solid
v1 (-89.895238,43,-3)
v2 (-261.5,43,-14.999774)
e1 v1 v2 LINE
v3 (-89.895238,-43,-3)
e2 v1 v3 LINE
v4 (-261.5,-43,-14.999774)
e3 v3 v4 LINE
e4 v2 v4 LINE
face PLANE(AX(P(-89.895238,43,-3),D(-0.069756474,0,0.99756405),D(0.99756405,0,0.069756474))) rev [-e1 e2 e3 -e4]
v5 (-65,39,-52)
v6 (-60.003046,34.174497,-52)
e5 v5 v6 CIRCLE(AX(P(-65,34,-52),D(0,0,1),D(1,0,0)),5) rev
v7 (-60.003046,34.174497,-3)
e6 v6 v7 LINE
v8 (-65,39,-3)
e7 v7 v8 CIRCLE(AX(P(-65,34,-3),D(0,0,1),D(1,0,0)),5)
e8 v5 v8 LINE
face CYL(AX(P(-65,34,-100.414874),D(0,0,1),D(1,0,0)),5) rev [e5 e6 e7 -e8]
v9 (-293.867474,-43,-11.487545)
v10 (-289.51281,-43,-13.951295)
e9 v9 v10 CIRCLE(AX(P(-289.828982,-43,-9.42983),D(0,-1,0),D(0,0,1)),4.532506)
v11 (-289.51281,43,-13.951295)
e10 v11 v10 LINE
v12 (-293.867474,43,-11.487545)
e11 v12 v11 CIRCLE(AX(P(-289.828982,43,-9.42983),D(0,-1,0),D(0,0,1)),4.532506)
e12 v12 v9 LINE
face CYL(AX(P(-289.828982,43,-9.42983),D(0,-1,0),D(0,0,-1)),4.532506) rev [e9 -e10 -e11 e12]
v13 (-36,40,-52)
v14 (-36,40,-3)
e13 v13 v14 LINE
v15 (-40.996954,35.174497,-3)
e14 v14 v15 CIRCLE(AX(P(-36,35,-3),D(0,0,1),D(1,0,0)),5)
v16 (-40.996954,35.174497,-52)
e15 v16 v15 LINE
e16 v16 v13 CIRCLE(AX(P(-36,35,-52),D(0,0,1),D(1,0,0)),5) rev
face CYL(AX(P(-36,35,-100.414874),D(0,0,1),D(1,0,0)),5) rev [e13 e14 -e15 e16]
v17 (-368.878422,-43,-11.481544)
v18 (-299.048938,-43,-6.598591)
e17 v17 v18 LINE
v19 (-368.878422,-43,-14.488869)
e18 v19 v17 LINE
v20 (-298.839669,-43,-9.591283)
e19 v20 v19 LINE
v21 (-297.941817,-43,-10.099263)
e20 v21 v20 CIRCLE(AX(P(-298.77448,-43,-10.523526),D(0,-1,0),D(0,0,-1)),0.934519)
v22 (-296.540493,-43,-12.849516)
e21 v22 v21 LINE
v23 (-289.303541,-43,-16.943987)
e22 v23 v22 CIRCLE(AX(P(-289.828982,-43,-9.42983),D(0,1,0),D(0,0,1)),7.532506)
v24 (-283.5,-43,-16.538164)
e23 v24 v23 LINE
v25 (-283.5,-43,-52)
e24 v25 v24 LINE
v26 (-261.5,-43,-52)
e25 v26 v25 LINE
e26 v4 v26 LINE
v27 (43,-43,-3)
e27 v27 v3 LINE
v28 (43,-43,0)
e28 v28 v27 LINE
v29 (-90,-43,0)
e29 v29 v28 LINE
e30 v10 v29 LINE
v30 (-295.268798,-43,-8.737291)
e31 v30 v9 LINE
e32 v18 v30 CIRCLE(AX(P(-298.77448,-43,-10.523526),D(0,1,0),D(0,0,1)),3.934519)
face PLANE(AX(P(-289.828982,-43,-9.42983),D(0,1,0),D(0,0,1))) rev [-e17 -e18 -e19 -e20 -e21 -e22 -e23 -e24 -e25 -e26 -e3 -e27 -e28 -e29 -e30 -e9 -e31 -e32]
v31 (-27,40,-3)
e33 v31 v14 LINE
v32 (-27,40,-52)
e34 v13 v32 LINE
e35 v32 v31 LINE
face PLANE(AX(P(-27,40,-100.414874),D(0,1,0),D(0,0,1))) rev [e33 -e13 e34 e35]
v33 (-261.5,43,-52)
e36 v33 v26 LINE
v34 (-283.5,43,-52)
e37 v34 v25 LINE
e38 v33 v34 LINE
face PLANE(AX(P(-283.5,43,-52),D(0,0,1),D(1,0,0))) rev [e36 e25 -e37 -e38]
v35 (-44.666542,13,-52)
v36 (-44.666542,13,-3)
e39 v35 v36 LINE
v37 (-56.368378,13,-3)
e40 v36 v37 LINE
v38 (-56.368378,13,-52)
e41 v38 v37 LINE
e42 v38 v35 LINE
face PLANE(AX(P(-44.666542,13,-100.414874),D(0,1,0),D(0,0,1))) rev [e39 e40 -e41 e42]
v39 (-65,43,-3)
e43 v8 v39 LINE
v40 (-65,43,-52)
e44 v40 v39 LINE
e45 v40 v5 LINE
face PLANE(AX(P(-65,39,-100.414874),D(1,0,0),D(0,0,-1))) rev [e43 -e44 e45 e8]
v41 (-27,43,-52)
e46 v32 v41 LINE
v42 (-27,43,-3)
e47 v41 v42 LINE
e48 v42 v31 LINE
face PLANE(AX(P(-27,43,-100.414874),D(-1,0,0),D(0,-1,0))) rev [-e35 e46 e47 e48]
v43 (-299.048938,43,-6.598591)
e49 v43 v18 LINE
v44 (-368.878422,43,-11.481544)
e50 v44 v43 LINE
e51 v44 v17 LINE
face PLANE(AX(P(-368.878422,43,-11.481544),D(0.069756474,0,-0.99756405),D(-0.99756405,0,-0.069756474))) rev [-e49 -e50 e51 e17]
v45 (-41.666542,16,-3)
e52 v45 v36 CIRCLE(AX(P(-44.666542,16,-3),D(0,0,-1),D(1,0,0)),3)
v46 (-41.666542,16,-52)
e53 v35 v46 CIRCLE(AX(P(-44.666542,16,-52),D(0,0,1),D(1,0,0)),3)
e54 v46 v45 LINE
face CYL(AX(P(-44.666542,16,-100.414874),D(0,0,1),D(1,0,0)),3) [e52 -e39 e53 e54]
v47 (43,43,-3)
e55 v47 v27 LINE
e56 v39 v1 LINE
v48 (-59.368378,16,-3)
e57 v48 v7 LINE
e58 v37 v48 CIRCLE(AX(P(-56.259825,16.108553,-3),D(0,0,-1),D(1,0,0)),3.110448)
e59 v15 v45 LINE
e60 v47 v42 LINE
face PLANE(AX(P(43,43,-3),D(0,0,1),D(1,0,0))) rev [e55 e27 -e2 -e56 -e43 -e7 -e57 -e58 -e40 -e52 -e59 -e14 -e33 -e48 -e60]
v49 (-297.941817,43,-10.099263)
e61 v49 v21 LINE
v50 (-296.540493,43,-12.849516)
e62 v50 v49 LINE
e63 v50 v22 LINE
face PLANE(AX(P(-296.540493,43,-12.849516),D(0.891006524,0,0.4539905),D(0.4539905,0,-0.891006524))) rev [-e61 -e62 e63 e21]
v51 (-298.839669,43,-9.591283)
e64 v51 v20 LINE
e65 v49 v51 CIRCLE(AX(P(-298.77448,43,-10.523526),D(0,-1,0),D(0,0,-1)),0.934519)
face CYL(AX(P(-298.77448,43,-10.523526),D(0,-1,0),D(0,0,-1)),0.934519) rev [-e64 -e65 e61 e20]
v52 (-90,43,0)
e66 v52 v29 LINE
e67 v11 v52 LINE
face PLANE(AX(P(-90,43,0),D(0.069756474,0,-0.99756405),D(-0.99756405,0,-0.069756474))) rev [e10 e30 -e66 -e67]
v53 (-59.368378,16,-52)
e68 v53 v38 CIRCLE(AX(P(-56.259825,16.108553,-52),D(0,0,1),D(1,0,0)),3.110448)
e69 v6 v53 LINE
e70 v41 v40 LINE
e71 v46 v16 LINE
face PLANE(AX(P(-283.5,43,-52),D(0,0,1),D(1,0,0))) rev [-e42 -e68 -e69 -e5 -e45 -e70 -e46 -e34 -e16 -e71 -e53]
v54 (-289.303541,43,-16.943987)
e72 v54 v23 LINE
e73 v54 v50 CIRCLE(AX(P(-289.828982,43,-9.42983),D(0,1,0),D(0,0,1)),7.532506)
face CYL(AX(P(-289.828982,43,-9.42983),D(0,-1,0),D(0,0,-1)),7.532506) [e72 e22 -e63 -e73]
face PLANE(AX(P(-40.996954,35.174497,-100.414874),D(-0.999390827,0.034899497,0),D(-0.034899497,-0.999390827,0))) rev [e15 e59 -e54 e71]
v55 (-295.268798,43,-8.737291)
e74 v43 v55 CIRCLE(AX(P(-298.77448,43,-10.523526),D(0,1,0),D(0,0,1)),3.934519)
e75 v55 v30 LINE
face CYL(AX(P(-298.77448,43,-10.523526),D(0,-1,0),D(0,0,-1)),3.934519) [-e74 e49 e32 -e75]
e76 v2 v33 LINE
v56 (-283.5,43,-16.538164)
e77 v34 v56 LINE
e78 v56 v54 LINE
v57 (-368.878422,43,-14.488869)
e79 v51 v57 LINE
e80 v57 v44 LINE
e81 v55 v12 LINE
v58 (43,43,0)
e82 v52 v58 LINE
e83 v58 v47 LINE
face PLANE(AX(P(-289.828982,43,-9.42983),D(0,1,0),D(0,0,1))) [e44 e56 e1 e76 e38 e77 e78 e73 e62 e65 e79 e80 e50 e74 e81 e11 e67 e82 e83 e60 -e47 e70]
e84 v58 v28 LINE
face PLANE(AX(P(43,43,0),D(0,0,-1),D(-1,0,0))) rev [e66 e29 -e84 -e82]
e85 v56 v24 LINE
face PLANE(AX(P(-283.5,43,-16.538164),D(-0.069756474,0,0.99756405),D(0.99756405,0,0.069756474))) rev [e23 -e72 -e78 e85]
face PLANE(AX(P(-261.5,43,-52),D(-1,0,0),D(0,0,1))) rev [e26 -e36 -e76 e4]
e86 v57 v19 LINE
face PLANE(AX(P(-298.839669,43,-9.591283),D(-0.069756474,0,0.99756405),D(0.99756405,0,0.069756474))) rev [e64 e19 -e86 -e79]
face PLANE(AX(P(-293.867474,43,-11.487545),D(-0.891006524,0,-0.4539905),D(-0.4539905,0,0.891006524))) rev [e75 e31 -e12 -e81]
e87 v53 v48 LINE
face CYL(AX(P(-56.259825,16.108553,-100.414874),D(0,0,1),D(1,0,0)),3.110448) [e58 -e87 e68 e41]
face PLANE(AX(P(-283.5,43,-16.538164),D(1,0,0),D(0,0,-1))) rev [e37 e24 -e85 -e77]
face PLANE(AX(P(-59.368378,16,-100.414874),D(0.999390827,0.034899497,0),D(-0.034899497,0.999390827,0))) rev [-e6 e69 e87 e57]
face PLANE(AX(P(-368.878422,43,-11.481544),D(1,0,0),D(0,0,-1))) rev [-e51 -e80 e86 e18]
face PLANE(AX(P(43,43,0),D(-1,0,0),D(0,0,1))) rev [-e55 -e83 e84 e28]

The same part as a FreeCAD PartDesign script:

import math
import FreeCAD as App
import Part
import Sketcher
from FreeCAD import Vector
Q = App.Units.Quantity

doc = App.newDocument("Part")
body = doc.addObject("PartDesign::Body", "Body")

sketch1 = body.newObject("Sketcher::SketchObject", "Sketch")
sketch1.AttachmentSupport = (doc.getObject("XZ_Plane"), [""])
sketch1.MapMode = "FlatFace"
sketch1.addGeometry(Part.LineSegment(Vector(-90, 0, 0), Vector(43, 0, 0)), False)
sketch1.addGeometry(Part.LineSegment(Vector(43, 0, 0), Vector(43, -3, 0)), False)
sketch1.addGeometry(Part.LineSegment(Vector(43, -3, 0), Vector(-89.9, -3, 0)), False)
sketch1.addGeometry(Part.LineSegment(Vector(-89.9, -3, 0), Vector(-261.5, -15, 0)), False)
sketch1.addGeometry(Part.LineSegment(Vector(-261.5, -15, 0), Vector(-261.5, -52, 0)), False)
sketch1.addGeometry(Part.LineSegment(Vector(-261.5, -52, 0), Vector(-283.5, -52, 0)), False)
sketch1.addGeometry(Part.LineSegment(Vector(-283.5, -52, 0), Vector(-283.5, -16.5, 0)), False)
sketch1.addGeometry(Part.LineSegment(Vector(-283.5, -16.5, 0), Vector(-289.3, -16.9, 0)), False)
sketch1.addGeometry(Part.ArcOfCircle(Part.Circle(Vector(-289.8, -9.4, 0), Vector(0, 0, 1), 7.5), math.radians(-153), math.radians(-86)), False)
sketch1.addGeometry(Part.LineSegment(Vector(-296.5, -12.8, 0), Vector(-297.9, -10.1, 0)), False)
sketch1.addGeometry(Part.ArcOfCircle(Part.Circle(Vector(-298.8, -10.5, 0), Vector(0, 0, 1), 0.9), math.radians(27), math.radians(94)), False)
sketch1.addGeometry(Part.LineSegment(Vector(-298.8, -9.6, 0), Vector(-368.9, -14.5, 0)), False)
sketch1.addGeometry(Part.LineSegment(Vector(-368.9, -14.5, 0), Vector(-368.9, -11.5, 0)), False)
sketch1.addGeometry(Part.LineSegment(Vector(-368.9, -11.5, 0), Vector(-299, -6.6, 0)), False)
sketch1.addGeometry(Part.ArcOfCircle(Part.Circle(Vector(-298.8, -10.5, 0), Vector(0, 0, 1), 3.9), math.radians(27), math.radians(94)), False)
sketch1.addGeometry(Part.LineSegment(Vector(-295.3, -8.7, 0), Vector(-293.9, -11.5, 0)), False)
sketch1.addGeometry(Part.ArcOfCircle(Part.Circle(Vector(-289.8, -9.4, 0), Vector(0, 0, 1), 4.5), math.radians(-153), math.radians(-86)), False)
sketch1.addGeometry(Part.LineSegment(Vector(-289.5, -14, 0), Vector(-90, 0, 0)), False)
sketch1.addConstraint(Sketcher.Constraint("Coincident", 0, 2, 1, 1))
sketch1.addConstraint(Sketcher.Constraint("Coincident", 1, 2, 2, 1))
sketch1.addConstraint(Sketcher.Constraint("Coincident", 2, 2, 3, 1))
sketch1.addConstraint(Sketcher.Constraint("Coincident", 3, 2, 4, 1))
sketch1.addConstraint(Sketcher.Constraint("Coincident", 4, 2, 5, 1))
sketch1.addConstraint(Sketcher.Constraint("Coincident", 5, 2, 6, 1))
sketch1.addConstraint(Sketcher.Constraint("Coincident", 6, 2, 7, 1))
sketch1.addConstraint(Sketcher.Constraint("Tangent", 7, 2, 8, 2))
sketch1.addConstraint(Sketcher.Constraint("Tangent", 8, 1, 9, 1))
sketch1.addConstraint(Sketcher.Constraint("Tangent", 9, 2, 10, 1))
sketch1.addConstraint(Sketcher.Constraint("Tangent", 10, 2, 11, 1))
sketch1.addConstraint(Sketcher.Constraint("Coincident", 11, 2, 12, 1))
sketch1.addConstraint(Sketcher.Constraint("Coincident", 12, 2, 13, 1))
sketch1.addConstraint(Sketcher.Constraint("Tangent", 13, 2, 14, 2))
sketch1.addConstraint(Sketcher.Constraint("Tangent", 14, 1, 15, 1))
sketch1.addConstraint(Sketcher.Constraint("Tangent", 15, 2, 16, 1))
sketch1.addConstraint(Sketcher.Constraint("Tangent", 16, 2, 17, 1))
sketch1.addConstraint(Sketcher.Constraint("Coincident", 17, 2, 0, 1))
sketch1.addConstraint(Sketcher.Constraint("Horizontal", 0))
sketch1.addConstraint(Sketcher.Constraint("Vertical", 1))
sketch1.addConstraint(Sketcher.Constraint("Horizontal", 2))
sketch1.addConstraint(Sketcher.Constraint("Vertical", 4))
sketch1.addConstraint(Sketcher.Constraint("Horizontal", 5))
sketch1.addConstraint(Sketcher.Constraint("Vertical", 6))
sketch1.addConstraint(Sketcher.Constraint("Vertical", 12))
sketch1.addConstraint(Sketcher.Constraint("Coincident", 14, 3, 10, 3))
sketch1.addConstraint(Sketcher.Constraint("Coincident", 16, 3, 8, 3))
sketch1.addConstraint(Sketcher.Constraint("PointOnObject", 0, 2, -1))
sketch1.addConstraint(Sketcher.Constraint("Parallel", 3, 7))
sketch1.addConstraint(Sketcher.Constraint("Parallel", 7, 11))
sketch1.addConstraint(Sketcher.Constraint("Parallel", 11, 13))
sketch1.addConstraint(Sketcher.Constraint("Parallel", 9, 15))
sketch1.addConstraint(Sketcher.Constraint("Parallel", 13, 17))
sketch1.addConstraint(Sketcher.Constraint("DistanceX", 0, 1, 0, 2, Q("133 mm")))
sketch1.addConstraint(Sketcher.Constraint("DistanceX", 5, 2, 5, 1, Q("22 mm")))
sketch1.addConstraint(Sketcher.Constraint("DistanceY", 1, 2, 1, 1, Q("3 mm")))
sketch1.addConstraint(Sketcher.Constraint("Angle", 3, Q("-176 deg")))
sketch1.addConstraint(Sketcher.Constraint("Angle", 9, Q("117 deg")))
sketch1.addConstraint(Sketcher.Constraint("Distance", 13, Q("70 mm")))
sketch1.addConstraint(Sketcher.Constraint("Distance", 17, Q("200 mm")))
sketch1.addConstraint(Sketcher.Constraint("DistanceX", -1, 1, 0, 2, Q("43 mm")))
sketch1.addConstraint(Sketcher.Constraint("DistanceY", 4, 2, -1, 1, Q("52 mm")))
sketch1.addConstraint(Sketcher.Constraint("DistanceX", 3, 2, -1, 1, Q("261.5 mm")))
sketch1.addConstraint(Sketcher.Constraint("Radius", 10, Q("0.934519 mm")))
sketch1.addConstraint(Sketcher.Constraint("Radius", 14, Q("3.934519 mm")))
sketch1.addConstraint(Sketcher.Constraint("Radius", 8, Q("7.532506 mm")))
sketch1.addConstraint(Sketcher.Constraint("DistanceX", 10, 3, 8, 3, Q("8.945498 mm")))
sketch1.addConstraint(Sketcher.Constraint("DistanceX", 2, 2, 2, 1, Q("132.895238 mm")))
pad1 = body.newObject("PartDesign::Pad", "Pad")
pad1.Profile = sketch1
pad1.Type = "TwoLengths"
pad1.Length = 43
pad1.Length2 = 43
pad1.Reversed = True

sketch2 = body.newObject("Sketcher::SketchObject", "Sketch001")
sketch2.AttachmentSupport = (doc.getObject("XY_Plane"), [""])
sketch2.MapMode = "FlatFace"
sketch2.AttachmentOffset = App.Placement(Vector(0, 0, -3), App.Rotation())
sketch2.addGeometry(Part.LineSegment(Vector(-27, 43, 0), Vector(-27, 40, 0)), False)
sketch2.addGeometry(Part.LineSegment(Vector(-27, 40, 0), Vector(-36, 40, 0)), False)
sketch2.addGeometry(Part.ArcOfCircle(Part.Circle(Vector(-36, 35, 0), Vector(0, 0, 1), 5), math.radians(90), math.radians(178)), False)
sketch2.addGeometry(Part.LineSegment(Vector(-41, 35.2, 0), Vector(-41.7, 16, 0)), False)
sketch2.addGeometry(Part.ArcOfCircle(Part.Circle(Vector(-44.7, 16, 0), Vector(0, 0, 1), 3), math.radians(-90), math.radians(0)), False)
sketch2.addGeometry(Part.LineSegment(Vector(-44.7, 13, 0), Vector(-56.4, 13, 0)), False)
sketch2.addGeometry(Part.ArcOfCircle(Part.Circle(Vector(-56.3, 16.1, 0), Vector(0, 0, 1), 3.1), math.radians(-178), math.radians(-92)), False)
sketch2.addGeometry(Part.LineSegment(Vector(-59.4, 16, 0), Vector(-60, 34.2, 0)), False)
sketch2.addGeometry(Part.ArcOfCircle(Part.Circle(Vector(-65, 34, 0), Vector(0, 0, 1), 5), math.radians(2), math.radians(90)), False)
sketch2.addGeometry(Part.LineSegment(Vector(-65, 39, 0), Vector(-65, 43, 0)), False)
sketch2.addGeometry(Part.LineSegment(Vector(-65, 43, 0), Vector(-27, 43, 0)), False)
sketch2.addConstraint(Sketcher.Constraint("Coincident", 0, 2, 1, 1))
sketch2.addConstraint(Sketcher.Constraint("Tangent", 1, 2, 2, 1))
sketch2.addConstraint(Sketcher.Constraint("Tangent", 2, 2, 3, 1))
sketch2.addConstraint(Sketcher.Constraint("Coincident", 3, 2, 4, 2))
sketch2.addConstraint(Sketcher.Constraint("Tangent", 4, 1, 5, 1))
sketch2.addConstraint(Sketcher.Constraint("Coincident", 5, 2, 6, 2))
sketch2.addConstraint(Sketcher.Constraint("Tangent", 6, 1, 7, 1))
sketch2.addConstraint(Sketcher.Constraint("Tangent", 7, 2, 8, 1))
sketch2.addConstraint(Sketcher.Constraint("Coincident", 8, 2, 9, 1))
sketch2.addConstraint(Sketcher.Constraint("Coincident", 9, 2, 10, 1))
sketch2.addConstraint(Sketcher.Constraint("Coincident", 10, 2, 0, 1))
sketch2.addConstraint(Sketcher.Constraint("Vertical", 0))
sketch2.addConstraint(Sketcher.Constraint("Horizontal", 1))
sketch2.addConstraint(Sketcher.Constraint("Horizontal", 5))
sketch2.addConstraint(Sketcher.Constraint("Vertical", 9))
sketch2.addConstraint(Sketcher.Constraint("Horizontal", 10))
sketch2.addConstraint(Sketcher.Constraint("Equal", 2, 8))
sketch2.addConstraint(Sketcher.Constraint("Horizontal", 4, 3, 3, 2))
sketch2.addConstraint(Sketcher.Constraint("Horizontal", 3, 2, 6, 1))
sketch2.addConstraint(Sketcher.Constraint("Radius", 2, Q("5 mm")))
sketch2.addConstraint(Sketcher.Constraint("Radius", 4, Q("3 mm")))
sketch2.addConstraint(Sketcher.Constraint("DistanceX", 1, 2, 1, 1, Q("9 mm")))
sketch2.addConstraint(Sketcher.Constraint("DistanceX", 10, 1, 10, 2, Q("38 mm")))
sketch2.addConstraint(Sketcher.Constraint("DistanceY", 0, 2, 0, 1, Q("3 mm")))
sketch2.addConstraint(Sketcher.Constraint("DistanceY", 9, 1, 9, 2, Q("4 mm")))
sketch2.addConstraint(Sketcher.Constraint("Angle", 3, Q("-92 deg")))
sketch2.addConstraint(Sketcher.Constraint("Angle", 7, Q("92 deg")))
sketch2.addConstraint(Sketcher.Constraint("DistanceX", 2, 3, -1, 1, Q("36 mm")))
sketch2.addConstraint(Sketcher.Constraint("DistanceY", -1, 1, 2, 3, Q("35 mm")))
sketch2.addConstraint(Sketcher.Constraint("DistanceY", -1, 1, 4, 3, Q("16 mm")))
sketch2.addConstraint(Sketcher.Constraint("DistanceX", 8, 3, -1, 1, Q("65 mm")))
sketch2.addConstraint(Sketcher.Constraint("DistanceX", 6, 1, 5, 2, Q("3 mm")))
pad2 = body.newObject("PartDesign::Pad", "Pad001")
pad2.Profile = sketch2
pad2.Length = 49
pad2.Reversed = True

doc.recompute()
